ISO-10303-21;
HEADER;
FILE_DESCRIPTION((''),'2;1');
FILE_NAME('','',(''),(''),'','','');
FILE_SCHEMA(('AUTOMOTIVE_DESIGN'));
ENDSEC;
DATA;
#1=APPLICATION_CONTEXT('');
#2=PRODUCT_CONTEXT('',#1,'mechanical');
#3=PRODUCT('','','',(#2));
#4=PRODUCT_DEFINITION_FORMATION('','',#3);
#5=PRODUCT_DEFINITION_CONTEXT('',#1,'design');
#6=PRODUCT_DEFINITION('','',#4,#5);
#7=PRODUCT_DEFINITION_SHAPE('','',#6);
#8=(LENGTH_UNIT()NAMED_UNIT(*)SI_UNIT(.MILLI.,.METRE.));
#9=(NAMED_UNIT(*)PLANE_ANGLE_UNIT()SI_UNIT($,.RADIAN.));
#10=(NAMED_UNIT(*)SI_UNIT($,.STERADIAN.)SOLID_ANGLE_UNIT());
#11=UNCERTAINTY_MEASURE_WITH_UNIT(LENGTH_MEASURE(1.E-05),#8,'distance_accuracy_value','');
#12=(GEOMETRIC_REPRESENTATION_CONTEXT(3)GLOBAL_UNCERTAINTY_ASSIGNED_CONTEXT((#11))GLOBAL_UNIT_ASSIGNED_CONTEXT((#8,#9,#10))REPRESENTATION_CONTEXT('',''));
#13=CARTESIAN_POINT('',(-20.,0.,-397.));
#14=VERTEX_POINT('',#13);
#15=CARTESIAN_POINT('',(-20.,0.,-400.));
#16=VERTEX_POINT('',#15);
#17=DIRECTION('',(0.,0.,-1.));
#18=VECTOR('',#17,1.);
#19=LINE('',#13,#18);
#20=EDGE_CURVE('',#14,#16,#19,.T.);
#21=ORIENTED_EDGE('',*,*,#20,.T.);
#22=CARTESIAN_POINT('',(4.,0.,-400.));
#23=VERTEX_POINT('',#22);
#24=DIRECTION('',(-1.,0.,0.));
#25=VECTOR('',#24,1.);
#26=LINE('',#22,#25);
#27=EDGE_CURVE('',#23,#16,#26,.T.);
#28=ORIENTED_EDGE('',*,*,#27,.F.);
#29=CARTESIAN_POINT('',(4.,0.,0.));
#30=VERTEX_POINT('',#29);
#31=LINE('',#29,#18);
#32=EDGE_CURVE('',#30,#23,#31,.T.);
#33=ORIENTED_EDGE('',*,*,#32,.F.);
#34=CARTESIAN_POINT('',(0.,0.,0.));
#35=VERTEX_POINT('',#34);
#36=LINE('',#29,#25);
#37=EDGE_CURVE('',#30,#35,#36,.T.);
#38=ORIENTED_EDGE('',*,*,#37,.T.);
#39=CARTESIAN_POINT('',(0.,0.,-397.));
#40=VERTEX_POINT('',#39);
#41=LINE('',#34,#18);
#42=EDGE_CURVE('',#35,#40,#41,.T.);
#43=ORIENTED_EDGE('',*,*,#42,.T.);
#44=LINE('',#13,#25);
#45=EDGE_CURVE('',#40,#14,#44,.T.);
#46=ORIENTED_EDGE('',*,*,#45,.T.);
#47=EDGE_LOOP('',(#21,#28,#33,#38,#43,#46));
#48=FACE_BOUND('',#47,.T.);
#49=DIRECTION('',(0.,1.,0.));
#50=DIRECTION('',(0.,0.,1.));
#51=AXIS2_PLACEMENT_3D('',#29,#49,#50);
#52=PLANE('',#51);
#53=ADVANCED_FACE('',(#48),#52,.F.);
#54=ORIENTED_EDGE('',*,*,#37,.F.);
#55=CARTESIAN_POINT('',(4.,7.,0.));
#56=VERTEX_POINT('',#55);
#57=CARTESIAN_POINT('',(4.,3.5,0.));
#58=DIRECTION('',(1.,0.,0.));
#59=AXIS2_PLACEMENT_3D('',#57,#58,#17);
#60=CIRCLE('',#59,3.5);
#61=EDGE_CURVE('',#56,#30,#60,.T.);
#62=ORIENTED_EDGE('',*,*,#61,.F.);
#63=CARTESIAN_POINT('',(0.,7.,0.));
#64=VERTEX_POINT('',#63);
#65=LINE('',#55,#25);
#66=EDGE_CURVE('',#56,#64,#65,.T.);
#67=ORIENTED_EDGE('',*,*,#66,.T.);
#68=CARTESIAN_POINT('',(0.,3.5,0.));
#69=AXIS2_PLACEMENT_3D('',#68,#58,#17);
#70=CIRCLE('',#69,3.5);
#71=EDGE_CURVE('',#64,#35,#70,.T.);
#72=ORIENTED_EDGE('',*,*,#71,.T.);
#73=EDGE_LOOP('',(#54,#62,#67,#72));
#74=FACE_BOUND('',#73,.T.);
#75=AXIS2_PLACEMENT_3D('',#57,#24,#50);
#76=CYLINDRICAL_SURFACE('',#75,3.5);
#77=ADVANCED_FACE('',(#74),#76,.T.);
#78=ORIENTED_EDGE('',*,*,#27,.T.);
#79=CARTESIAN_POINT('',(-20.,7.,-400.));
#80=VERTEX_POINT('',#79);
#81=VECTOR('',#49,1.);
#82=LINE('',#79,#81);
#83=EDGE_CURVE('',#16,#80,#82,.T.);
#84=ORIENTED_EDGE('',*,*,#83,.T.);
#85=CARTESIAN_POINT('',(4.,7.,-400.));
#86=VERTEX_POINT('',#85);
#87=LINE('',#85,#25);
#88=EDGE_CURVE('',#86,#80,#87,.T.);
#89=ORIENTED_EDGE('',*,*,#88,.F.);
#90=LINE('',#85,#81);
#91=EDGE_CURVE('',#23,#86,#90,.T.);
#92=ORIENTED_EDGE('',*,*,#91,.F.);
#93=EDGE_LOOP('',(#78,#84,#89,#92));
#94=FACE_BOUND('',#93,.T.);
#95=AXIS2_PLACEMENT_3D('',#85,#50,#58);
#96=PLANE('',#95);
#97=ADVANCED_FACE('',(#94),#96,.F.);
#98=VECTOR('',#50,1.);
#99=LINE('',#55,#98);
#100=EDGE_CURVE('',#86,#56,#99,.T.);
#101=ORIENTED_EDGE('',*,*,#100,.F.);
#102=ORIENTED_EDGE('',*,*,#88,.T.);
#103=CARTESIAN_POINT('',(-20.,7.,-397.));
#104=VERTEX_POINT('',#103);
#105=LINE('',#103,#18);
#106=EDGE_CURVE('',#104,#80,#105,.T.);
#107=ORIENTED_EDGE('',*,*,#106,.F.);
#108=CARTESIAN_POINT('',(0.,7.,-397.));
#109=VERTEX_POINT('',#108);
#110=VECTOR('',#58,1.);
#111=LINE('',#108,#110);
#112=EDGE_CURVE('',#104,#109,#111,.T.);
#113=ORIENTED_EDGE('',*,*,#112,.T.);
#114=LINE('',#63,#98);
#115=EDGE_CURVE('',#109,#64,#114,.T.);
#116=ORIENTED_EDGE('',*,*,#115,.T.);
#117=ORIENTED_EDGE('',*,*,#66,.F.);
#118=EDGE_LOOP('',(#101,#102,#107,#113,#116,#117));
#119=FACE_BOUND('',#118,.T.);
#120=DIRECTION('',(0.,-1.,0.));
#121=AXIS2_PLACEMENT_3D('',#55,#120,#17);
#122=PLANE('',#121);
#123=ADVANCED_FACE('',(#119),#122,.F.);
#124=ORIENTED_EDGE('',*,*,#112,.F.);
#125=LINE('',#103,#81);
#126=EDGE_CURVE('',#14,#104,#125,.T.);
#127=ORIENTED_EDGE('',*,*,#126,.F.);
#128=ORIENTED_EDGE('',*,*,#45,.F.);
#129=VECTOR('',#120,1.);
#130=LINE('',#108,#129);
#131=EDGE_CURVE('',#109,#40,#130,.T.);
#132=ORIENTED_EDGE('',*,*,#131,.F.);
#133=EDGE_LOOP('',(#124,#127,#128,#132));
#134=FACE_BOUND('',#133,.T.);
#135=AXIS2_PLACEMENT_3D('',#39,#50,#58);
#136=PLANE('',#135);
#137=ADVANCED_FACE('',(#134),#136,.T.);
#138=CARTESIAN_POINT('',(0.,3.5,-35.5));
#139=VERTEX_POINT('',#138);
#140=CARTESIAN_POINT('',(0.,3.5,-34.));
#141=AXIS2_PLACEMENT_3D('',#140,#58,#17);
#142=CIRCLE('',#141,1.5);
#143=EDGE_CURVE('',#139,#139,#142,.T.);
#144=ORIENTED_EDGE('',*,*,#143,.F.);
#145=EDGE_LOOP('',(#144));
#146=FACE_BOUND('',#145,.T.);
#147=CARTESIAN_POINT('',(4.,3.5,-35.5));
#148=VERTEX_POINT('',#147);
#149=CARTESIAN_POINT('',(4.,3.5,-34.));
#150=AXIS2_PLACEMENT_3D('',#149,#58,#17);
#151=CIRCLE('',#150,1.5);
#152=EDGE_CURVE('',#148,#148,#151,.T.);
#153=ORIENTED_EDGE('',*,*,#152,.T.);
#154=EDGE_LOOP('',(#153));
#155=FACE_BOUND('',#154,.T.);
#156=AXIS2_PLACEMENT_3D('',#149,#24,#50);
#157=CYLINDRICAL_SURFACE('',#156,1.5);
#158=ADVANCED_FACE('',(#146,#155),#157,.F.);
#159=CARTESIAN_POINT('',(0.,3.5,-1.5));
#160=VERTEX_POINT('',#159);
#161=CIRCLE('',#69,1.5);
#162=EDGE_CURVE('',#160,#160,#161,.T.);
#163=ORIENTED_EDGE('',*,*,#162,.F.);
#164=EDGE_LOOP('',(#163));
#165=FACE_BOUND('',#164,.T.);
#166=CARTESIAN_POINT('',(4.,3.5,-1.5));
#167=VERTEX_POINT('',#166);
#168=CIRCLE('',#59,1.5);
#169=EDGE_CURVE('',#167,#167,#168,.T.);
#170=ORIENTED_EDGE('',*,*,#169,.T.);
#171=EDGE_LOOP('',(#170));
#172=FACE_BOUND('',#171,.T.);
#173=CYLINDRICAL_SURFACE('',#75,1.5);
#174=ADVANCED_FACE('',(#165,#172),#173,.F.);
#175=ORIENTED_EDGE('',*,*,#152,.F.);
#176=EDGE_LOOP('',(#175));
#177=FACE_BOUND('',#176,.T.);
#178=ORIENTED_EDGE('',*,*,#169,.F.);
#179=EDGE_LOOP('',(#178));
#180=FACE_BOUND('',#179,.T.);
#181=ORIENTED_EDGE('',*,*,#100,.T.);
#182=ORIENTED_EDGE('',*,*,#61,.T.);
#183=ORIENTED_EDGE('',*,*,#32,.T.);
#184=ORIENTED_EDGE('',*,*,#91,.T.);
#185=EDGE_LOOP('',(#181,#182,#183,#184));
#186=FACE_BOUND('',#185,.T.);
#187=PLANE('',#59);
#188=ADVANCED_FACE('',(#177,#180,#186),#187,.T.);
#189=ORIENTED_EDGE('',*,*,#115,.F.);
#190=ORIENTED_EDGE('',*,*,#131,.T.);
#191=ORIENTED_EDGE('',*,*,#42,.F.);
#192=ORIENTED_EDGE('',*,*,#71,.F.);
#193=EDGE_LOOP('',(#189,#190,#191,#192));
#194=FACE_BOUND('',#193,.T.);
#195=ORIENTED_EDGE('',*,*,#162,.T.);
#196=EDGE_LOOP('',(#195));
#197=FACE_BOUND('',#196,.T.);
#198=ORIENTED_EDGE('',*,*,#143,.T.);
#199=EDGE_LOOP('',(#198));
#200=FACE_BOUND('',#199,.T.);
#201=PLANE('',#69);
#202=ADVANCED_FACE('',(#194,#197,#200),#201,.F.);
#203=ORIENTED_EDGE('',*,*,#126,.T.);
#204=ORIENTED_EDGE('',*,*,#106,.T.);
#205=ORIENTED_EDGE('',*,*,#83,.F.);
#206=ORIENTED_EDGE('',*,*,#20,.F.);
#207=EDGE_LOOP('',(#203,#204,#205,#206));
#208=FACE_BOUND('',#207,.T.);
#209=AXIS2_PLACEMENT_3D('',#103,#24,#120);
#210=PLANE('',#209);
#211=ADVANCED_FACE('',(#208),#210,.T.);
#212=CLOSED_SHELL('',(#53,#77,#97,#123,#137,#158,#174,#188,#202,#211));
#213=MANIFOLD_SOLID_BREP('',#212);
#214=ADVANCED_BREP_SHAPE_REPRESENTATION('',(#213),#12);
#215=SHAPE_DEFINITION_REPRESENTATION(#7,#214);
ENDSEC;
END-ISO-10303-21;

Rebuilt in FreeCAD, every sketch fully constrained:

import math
import FreeCAD as App
import Part
import Sketcher
Q = App.Units.Quantity


def add_polygon(sketch, points):
    """Adds a closed chain of lines whose ends are joined by coincident constraints."""
    first, n = sketch.GeometryCount, len(points)
    for a, b in zip(points, points[1:] + points[:1]):
        sketch.addGeometry(Part.LineSegment(App.Vector(*a, 0), App.Vector(*b, 0)), False)
    for i in range(n):
        sketch.addConstraint(Sketcher.Constraint("Coincident", first + i, 2, first + (i + 1) % n, 1))

doc = App.newDocument("Part")
body = doc.addObject("PartDesign::Body", "Body")

# Sketch on YZ plane
sketch1 = body.newObject("Sketcher::SketchObject", "Sketch")
sketch1.AttachmentSupport = (doc.getObject("YZ_Plane"), [""])
sketch1.MapMode = "FlatFace"
sketch1.addGeometry([
    Part.LineSegment(App.Vector(0, -400, 0), App.Vector(7, -400, 0)),  # 0
    Part.LineSegment(App.Vector(7, -400, 0), App.Vector(7, 0, 0)),  # 1
    Part.ArcOfCircle(Part.Circle(App.Vector(3.5, 0, 0), App.Vector(0, 0, 1), 3.5), math.radians(0), math.radians(180)),  # 2
    Part.LineSegment(App.Vector(0, 0, 0), App.Vector(0, -400, 0)),  # 3
    Part.Circle(App.Vector(3.5, -34, 0), App.Vector(0, 0, 1), 1.5),  # 4
    Part.Circle(App.Vector(3.5, 0, 0), App.Vector(0, 0, 1), 1.5),  # 5
], False)
sketch1.addConstraint([
    Sketcher.Constraint("Coincident", 0, 2, 1, 1),
    Sketcher.Constraint("Tangent", 1, 2, 2, 1),
    Sketcher.Constraint("Tangent", 2, 2, 3, 1),
    Sketcher.Constraint("Coincident", 3, 2, 0, 1),
    Sketcher.Constraint("Horizontal", 0),
    Sketcher.Constraint("Vertical", 1),
    Sketcher.Constraint("Vertical", 3),
    Sketcher.Constraint("Coincident", 2, 2, -1, 1),
    Sketcher.Constraint("Coincident", 5, 3, 2, 3),
    Sketcher.Constraint("Equal", 4, 5),
    Sketcher.Constraint("Vertical", 2, 3, 4, 3),
    Sketcher.Constraint("Diameter", 4, Q("3 mm")),
    Sketcher.Constraint("Radius", 2, Q("3.5 mm")),
    Sketcher.Constraint("DistanceY", 1, 1, 1, 2, Q("400 mm")),
    Sketcher.Constraint("DistanceY", 4, 3, -1, 1, Q("34 mm")),
])
pad1 = body.newObject("PartDesign::Pad", "Pad")
pad1.Profile = sketch1
pad1.Length = 4

# Sketch on XY plane
sketch2 = body.newObject("Sketcher::SketchObject", "Sketch001")
sketch2.AttachmentSupport = (doc.getObject("XY_Plane"), [""])
sketch2.MapMode = "FlatFace"
sketch2.AttachmentOffset = App.Placement(App.Vector(0, 0, -400), App.Rotation())
add_polygon(sketch2, [(0, 7), (0, 0), (-20, 0), (-20, 7)])  # lines 0-3
sketch2.addConstraint([
    Sketcher.Constraint("Vertical", 0),
    Sketcher.Constraint("Horizontal", 1),
    Sketcher.Constraint("Vertical", 2),
    Sketcher.Constraint("Horizontal", 3),
    Sketcher.Constraint("Coincident", 0, 2, -1, 1),
    Sketcher.Constraint("DistanceX", 1, 2, 1, 1, Q("20 mm")),
    Sketcher.Constraint("DistanceY", 0, 2, 0, 1, Q("7 mm")),
])
pad2 = body.newObject("PartDesign::Pad", "Pad001")
pad2.Profile = sketch2
pad2.Length = 3

doc.recompute()
